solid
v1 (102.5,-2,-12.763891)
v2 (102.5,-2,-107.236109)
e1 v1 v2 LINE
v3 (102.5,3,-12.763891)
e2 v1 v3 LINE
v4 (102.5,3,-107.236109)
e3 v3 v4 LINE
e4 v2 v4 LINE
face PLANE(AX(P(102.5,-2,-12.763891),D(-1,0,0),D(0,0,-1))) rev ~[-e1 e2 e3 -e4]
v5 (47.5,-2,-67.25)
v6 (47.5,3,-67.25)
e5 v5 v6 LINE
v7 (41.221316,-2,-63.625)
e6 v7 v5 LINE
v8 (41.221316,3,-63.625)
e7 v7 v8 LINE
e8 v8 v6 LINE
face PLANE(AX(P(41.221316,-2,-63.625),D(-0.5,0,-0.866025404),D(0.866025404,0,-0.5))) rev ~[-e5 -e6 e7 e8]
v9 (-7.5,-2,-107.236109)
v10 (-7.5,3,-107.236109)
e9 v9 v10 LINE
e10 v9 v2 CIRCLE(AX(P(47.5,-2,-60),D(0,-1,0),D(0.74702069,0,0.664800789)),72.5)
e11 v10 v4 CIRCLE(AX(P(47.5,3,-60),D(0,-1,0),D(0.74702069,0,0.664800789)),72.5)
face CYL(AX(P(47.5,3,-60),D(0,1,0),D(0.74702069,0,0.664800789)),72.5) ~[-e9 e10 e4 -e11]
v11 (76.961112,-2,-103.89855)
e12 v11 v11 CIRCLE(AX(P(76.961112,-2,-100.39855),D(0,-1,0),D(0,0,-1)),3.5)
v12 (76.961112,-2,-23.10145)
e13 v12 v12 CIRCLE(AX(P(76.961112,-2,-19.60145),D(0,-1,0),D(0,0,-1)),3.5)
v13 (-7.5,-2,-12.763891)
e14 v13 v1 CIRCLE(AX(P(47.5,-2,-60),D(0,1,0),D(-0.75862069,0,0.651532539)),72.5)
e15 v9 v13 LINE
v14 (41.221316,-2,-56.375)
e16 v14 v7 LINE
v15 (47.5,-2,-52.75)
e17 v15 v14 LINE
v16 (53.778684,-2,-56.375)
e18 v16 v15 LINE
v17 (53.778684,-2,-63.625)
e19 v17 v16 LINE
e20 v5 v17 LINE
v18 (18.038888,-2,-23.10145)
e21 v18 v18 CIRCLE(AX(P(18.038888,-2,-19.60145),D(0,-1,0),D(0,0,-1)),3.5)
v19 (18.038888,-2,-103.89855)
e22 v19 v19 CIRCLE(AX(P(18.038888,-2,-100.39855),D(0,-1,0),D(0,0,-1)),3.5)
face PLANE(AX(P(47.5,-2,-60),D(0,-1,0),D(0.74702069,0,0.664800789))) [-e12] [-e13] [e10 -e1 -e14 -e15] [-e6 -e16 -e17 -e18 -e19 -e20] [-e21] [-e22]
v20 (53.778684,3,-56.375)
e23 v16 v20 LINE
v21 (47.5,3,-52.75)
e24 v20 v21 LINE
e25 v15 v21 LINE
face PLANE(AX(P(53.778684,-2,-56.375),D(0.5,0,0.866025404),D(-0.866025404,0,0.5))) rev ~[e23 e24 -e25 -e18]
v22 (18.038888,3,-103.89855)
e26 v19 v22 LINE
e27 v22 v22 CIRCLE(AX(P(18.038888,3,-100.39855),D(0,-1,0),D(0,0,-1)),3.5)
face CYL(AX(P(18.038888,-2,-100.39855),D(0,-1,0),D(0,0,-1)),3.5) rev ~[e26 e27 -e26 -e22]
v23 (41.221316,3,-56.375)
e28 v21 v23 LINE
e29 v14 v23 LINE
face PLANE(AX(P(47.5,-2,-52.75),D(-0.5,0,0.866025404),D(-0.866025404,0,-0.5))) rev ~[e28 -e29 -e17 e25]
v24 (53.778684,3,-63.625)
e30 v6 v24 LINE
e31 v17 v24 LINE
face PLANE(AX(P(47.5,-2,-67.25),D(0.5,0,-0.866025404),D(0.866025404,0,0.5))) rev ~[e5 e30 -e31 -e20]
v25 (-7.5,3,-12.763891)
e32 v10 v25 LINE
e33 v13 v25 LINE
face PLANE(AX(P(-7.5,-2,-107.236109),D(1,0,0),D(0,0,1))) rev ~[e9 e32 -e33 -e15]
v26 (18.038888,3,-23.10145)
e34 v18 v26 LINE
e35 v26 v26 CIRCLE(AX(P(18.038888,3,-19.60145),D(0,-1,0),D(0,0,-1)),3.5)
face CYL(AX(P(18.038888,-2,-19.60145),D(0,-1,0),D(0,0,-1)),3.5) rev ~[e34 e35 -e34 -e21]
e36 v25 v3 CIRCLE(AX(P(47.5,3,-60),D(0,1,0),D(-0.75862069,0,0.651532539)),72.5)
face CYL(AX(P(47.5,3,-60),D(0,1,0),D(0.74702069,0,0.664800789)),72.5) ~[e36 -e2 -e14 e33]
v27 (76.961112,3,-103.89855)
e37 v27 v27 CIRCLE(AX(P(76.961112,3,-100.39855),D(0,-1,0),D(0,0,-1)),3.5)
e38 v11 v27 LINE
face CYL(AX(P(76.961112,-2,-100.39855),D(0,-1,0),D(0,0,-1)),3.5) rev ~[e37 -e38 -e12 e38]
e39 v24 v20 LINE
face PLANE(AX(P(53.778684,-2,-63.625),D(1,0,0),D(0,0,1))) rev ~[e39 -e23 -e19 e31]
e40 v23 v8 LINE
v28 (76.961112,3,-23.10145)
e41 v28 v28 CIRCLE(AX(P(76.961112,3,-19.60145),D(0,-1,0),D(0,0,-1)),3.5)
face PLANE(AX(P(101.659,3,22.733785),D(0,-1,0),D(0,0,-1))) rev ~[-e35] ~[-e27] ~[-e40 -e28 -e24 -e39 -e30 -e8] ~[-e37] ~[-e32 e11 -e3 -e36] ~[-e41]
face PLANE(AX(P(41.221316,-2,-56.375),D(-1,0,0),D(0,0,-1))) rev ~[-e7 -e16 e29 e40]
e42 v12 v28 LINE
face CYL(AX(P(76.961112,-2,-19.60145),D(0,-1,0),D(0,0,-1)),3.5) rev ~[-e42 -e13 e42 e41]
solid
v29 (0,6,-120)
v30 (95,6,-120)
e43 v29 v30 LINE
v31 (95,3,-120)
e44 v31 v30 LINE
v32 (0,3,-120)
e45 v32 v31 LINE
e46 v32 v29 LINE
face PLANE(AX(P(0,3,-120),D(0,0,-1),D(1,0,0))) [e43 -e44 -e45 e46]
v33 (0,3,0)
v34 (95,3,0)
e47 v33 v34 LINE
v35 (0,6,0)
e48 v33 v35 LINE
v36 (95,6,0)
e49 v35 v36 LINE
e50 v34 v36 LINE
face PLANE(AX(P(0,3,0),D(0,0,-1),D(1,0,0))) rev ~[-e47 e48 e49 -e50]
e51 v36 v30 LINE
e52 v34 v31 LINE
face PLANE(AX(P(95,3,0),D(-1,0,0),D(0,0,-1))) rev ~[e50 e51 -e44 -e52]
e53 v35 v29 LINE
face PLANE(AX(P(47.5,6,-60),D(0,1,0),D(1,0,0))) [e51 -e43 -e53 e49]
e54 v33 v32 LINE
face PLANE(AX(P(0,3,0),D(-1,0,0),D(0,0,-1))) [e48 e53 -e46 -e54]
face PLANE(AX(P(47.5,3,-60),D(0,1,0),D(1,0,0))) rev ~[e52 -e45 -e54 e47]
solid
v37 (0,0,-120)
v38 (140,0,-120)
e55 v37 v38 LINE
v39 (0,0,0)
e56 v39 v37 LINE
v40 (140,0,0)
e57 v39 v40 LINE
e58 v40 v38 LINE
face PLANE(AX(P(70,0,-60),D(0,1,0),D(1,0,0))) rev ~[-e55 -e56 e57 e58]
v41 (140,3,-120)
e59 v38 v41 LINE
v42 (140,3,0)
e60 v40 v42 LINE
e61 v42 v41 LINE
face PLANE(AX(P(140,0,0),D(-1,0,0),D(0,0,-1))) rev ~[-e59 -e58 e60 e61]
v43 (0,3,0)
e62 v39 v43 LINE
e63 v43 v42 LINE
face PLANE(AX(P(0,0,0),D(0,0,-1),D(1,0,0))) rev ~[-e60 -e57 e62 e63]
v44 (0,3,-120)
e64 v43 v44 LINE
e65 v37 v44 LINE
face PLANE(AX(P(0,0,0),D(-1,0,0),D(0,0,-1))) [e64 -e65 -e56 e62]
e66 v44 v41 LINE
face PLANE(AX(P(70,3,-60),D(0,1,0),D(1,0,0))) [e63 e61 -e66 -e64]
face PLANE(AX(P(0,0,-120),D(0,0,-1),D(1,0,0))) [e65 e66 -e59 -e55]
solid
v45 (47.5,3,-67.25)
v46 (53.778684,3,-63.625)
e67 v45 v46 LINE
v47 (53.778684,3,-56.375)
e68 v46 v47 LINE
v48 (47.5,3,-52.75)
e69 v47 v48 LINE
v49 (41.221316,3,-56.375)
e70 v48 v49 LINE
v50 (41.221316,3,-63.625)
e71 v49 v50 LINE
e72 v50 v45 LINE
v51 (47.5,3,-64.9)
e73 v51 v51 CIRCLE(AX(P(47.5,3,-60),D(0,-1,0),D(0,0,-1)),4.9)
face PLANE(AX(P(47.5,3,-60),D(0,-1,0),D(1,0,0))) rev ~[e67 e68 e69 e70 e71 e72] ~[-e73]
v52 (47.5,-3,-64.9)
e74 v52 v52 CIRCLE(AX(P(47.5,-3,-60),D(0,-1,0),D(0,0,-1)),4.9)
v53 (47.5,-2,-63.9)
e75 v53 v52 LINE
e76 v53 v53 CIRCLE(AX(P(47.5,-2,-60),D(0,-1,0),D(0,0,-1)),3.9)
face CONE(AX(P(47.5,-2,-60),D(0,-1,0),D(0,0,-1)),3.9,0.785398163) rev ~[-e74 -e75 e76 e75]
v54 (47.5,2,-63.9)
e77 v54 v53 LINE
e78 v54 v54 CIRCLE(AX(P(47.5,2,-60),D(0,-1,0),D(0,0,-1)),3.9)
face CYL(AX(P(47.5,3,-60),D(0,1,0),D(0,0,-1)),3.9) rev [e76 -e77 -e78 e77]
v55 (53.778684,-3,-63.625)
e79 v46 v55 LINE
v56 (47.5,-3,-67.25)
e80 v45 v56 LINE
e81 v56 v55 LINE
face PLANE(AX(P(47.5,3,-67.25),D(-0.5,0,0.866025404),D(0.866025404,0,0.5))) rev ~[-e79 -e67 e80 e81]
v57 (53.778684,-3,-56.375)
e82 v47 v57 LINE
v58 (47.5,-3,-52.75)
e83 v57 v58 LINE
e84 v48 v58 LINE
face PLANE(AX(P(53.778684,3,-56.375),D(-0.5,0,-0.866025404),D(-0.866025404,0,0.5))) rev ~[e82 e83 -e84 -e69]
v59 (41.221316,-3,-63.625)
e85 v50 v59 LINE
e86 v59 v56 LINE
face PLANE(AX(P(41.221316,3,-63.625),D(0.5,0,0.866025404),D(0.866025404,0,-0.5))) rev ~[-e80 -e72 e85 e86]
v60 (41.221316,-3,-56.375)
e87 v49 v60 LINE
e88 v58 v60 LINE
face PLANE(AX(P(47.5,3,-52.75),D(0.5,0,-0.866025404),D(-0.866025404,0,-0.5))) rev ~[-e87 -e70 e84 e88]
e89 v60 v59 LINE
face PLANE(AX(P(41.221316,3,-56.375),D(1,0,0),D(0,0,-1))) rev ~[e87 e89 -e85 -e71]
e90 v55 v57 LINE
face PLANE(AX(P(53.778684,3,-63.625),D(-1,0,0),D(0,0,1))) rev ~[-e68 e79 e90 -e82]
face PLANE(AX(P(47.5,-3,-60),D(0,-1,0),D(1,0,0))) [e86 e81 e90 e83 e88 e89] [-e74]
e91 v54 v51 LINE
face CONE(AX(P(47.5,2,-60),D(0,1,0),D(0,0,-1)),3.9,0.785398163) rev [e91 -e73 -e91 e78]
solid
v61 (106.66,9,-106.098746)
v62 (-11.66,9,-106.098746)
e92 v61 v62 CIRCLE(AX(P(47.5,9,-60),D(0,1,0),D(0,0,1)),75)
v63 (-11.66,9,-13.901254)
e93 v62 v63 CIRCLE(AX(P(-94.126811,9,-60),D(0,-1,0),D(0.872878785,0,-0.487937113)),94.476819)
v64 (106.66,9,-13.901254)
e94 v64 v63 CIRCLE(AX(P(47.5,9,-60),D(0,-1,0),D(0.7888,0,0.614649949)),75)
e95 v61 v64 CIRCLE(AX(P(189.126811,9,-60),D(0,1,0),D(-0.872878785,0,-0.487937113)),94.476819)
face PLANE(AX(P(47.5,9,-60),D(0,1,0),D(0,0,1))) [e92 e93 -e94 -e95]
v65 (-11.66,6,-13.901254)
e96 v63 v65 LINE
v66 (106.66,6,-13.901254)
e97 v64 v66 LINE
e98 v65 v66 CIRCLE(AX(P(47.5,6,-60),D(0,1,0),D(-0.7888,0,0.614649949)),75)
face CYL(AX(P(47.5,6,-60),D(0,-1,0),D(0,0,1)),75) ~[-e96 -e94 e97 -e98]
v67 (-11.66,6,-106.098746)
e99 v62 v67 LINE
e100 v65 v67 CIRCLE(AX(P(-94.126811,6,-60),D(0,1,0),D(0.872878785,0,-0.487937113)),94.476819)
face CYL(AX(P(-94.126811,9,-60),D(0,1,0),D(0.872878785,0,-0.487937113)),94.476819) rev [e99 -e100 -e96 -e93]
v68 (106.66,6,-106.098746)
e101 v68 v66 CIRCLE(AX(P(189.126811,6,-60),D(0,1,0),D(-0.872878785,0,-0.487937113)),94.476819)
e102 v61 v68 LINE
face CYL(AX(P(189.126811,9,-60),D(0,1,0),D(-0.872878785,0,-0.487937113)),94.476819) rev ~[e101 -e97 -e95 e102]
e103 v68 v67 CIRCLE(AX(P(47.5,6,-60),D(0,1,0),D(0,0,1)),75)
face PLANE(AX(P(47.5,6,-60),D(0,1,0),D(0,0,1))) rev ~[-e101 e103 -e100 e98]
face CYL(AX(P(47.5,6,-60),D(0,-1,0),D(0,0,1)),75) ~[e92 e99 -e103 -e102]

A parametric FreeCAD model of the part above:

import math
import FreeCAD as App
import Part
import Sketcher
from FreeCAD import Vector
Q = App.Units.Quantity


def edges_at(feature, points):
    """Names of the edges that pass closest to the given points."""
    edges = feature.Shape.Edges
    near = lambda p: min(range(len(edges)), key=lambda i: edges[i].distToShape(Part.Vertex(*p))[0])
    return sorted({f"Edge{near(p) + 1}" for p in points})


def add_polygon(sketch, points):
    """Adds a closed chain of lines whose ends are joined by coincident constraints."""
    first, n = sketch.GeometryCount, len(points)
    for a, b in zip(points, points[1:] + points[:1]):
        sketch.addGeometry(Part.LineSegment(App.Vector(*a, 0), App.Vector(*b, 0)), False)
    for i in range(n):
        sketch.addConstraint(Sketcher.Constraint("Coincident", first + i, 2, first + (i + 1) % n, 1))

doc = App.newDocument("Part")
body = doc.addObject("PartDesign::Body", "Body")

sketch1 = body.newObject("Sketcher::SketchObject", "Sketch")
sketch1.AttachmentSupport = (doc.getObject("XZ_Plane"), [""])
sketch1.MapMode = "FlatFace"
add_polygon(sketch1, [(0, -120), (0, 0), (140, 0), (140, -120)])
sketch1.addConstraint([
    Sketcher.Constraint("Vertical", 0),
    Sketcher.Constraint("Horizontal", 1),
    Sketcher.Constraint("Vertical", 2),
    Sketcher.Constraint("Horizontal", 3),
    Sketcher.Constraint("Coincident", 0, 2, -1, 1),
    Sketcher.Constraint("DistanceX", 1, 1, 1, 2, Q("140 mm")),
    Sketcher.Constraint("DistanceY", 0, 1, 0, 2, Q("120 mm")),
])
pad1 = body.newObject("PartDesign::Pad", "Pad")
pad1.Profile = sketch1
pad1.Length = 3
pad1.Reversed = True
body2 = doc.addObject("PartDesign::Body", "Body001")

sketch2 = body2.newObject("Sketcher::SketchObject", "Sketch001")
sketch2.AttachmentSupport = (doc.getObject("XZ_Plane001"), [""])
sketch2.MapMode = "FlatFace"
sketch2.AttachmentOffset = App.Placement(Vector(0, 0, -3), App.Rotation())
add_polygon(sketch2, [(0, -120), (0, 0), (95, 0), (95, -120)])
sketch2.addConstraint([
    Sketcher.Constraint("Vertical", 0),
    Sketcher.Constraint("Horizontal", 1),
    Sketcher.Constraint("Vertical", 2),
    Sketcher.Constraint("Horizontal", 3),
    Sketcher.Constraint("Coincident", 0, 2, -1, 1),
    Sketcher.Constraint("DistanceX", 1, 1, 1, 2, Q("95 mm")),
    Sketcher.Constraint("DistanceY", 0, 1, 0, 2, Q("120 mm")),
])
pad2 = body2.newObject("PartDesign::Pad", "Pad001")
pad2.Profile = sketch2
pad2.Length = 3
pad2.Reversed = True
body3 = doc.addObject("PartDesign::Body", "Body002")

sketch3 = body3.newObject("Sketcher::SketchObject", "Sketch002")
sketch3.AttachmentSupport = (doc.getObject("XZ_Plane002"), [""])
sketch3.MapMode = "FlatFace"
sketch3.AttachmentOffset = App.Placement(Vector(0, 0, -6), App.Rotation())
sketch3.addGeometry(Part.Circle(Vector(47.5, -60, 0), Vector(0, 0, 1), 75), False)
sketch3.addConstraint([
    Sketcher.Constraint("Diameter", 0, Q("150 mm")),
    Sketcher.Constraint("DistanceY", 0, 3, -1, 1, Q("60 mm")),
    Sketcher.Constraint("DistanceX", -1, 1, 0, 3, Q("47.5 mm")),
])
pad3 = body3.newObject("PartDesign::Pad", "Pad002")
pad3.Profile = sketch3
pad3.Length = 3
pad3.Reversed = True

sketch4 = body3.newObject("Sketcher::SketchObject", "Sketch003")
sketch4.AttachmentSupport = (doc.getObject("XZ_Plane002"), [""])
sketch4.MapMode = "FlatFace"
sketch4.AttachmentOffset = App.Placement(Vector(0, 0, -9), App.Rotation())
sketch4.addGeometry([
    Part.ArcOfCircle(Part.Circle(Vector(-94.126811, -60, 0), Vector(0, 0, 1), 94.476819), math.radians(-29.205084), math.radians(29.205084)),
    Part.ArcOfCircle(Part.Circle(Vector(47.5, -60, 0), Vector(0, 0, 1), 75), math.radians(142.073511), math.radians(217.926489)),
    Part.ArcOfCircle(Part.Circle(Vector(189.126811, -60, 0), Vector(0, 0, 1), 94.476819), math.radians(150.794916), math.radians(209.205084)),
    Part.ArcOfCircle(Part.Circle(Vector(47.5, -60, 0), Vector(0, 0, 1), 75), math.radians(-37.926489), math.radians(37.926489)),
], False)
sketch4.addConstraint([
    Sketcher.Constraint("Coincident", 0, 1, 1, 2),
    Sketcher.Constraint("Coincident", 1, 1, 0, 2),
    Sketcher.Constraint("Coincident", 2, 1, 3, 2),
    Sketcher.Constraint("Coincident", 3, 1, 2, 2),
    Sketcher.Constraint("Coincident", 3, 3, 1, 3),
    Sketcher.Constraint("Equal", 0, 2),
    Sketcher.Constraint("Equal", 1, 3),
    Sketcher.Constraint("Horizontal", 0, 3, 1, 3),
    Sketcher.Constraint("Horizontal", 1, 3, 2, 3),
    Sketcher.Constraint("Horizontal", 1, 1, 2, 1),
    Sketcher.Constraint("Radius", 1, Q("75 mm")),
    Sketcher.Constraint("DistanceY", 0, 3, -1, 1, Q("60 mm")),
    Sketcher.Constraint("DistanceX", -1, 1, 1, 3, Q("47.5 mm")),
    Sketcher.Constraint("DistanceX", 0, 1, -1, 1, Q("11.66 mm")),
    Sketcher.Constraint("Radius", 0, Q("94.476819 mm")),
])
pocket1 = body3.newObject("PartDesign::Pocket", "Pocket")
pocket1.Profile = sketch4
pocket1.Type = "ThroughAll"
pocket1.Reversed = True
body4 = doc.addObject("PartDesign::Body", "Body003")

sketch5 = body4.newObject("Sketcher::SketchObject", "Sketch004")
sketch5.AttachmentSupport = (doc.getObject("XZ_Plane003"), [""])
sketch5.MapMode = "FlatFace"
sketch5.AttachmentOffset = App.Placement(Vector(0, 0, -6), App.Rotation())
sketch5.addGeometry([
    Part.ArcOfCircle(Part.Circle(Vector(47.5, -60, 0), Vector(0, 0, 1), 75), math.radians(37.926489), math.radians(142.073511)),
    Part.ArcOfCircle(Part.Circle(Vector(-94.126811, -60, 0), Vector(0, 0, 1), 94.476819), math.radians(-29.205084), math.radians(29.205084)),
    Part.ArcOfCircle(Part.Circle(Vector(47.5, -60, 0), Vector(0, 0, 1), 75), math.radians(-142.073511), math.radians(-37.926489)),
    Part.ArcOfCircle(Part.Circle(Vector(189.126811, -60, 0), Vector(0, 0, 1), 94.476819), math.radians(150.794916), math.radians(209.205084)),
], False)
sketch5.addConstraint([
    Sketcher.Constraint("Coincident", 0, 2, 1, 2),
    Sketcher.Constraint("Coincident", 1, 1, 2, 1),
    Sketcher.Constraint("Coincident", 2, 2, 3, 2),
    Sketcher.Constraint("Coincident", 3, 1, 0, 1),
    Sketcher.Constraint("Coincident", 2, 3, 0, 3),
    Sketcher.Constraint("Equal", 0, 2),
    Sketcher.Constraint("Equal", 1, 3),
    Sketcher.Constraint("Horizontal", 0, 3, 1, 3),
    Sketcher.Constraint("Horizontal", 2, 3, 3, 3),
    Sketcher.Constraint("Horizontal", 1, 1, 2, 2),
    Sketcher.Constraint("Radius", 0, Q("75 mm")),
    Sketcher.Constraint("DistanceY", 0, 3, -1, 1, Q("60 mm")),
    Sketcher.Constraint("DistanceX", -1, 1, 0, 3, Q("47.5 mm")),
    Sketcher.Constraint("DistanceX", 0, 2, -1, 1, Q("11.66 mm")),
    Sketcher.Constraint("Radius", 1, Q("94.476819 mm")),
])
pad4 = body4.newObject("PartDesign::Pad", "Pad003")
pad4.Profile = sketch5
pad4.Length = 3

sketch6 = body4.newObject("Sketcher::SketchObject", "Sketch005")
sketch6.AttachmentSupport = (doc.getObject("XZ_Plane003"), [""])
sketch6.MapMode = "FlatFace"
sketch6.AttachmentOffset = App.Placement(Vector(0, 0, -6), App.Rotation())
sketch6.addGeometry([
    Part.LineSegment(Vector(-11.66, -106.098746, 0), Vector(-11.66, -13.901254, 0)),
    Part.ArcOfCircle(Part.Circle(Vector(-94.126811, -60, 0), Vector(0, 0, 1), 94.476819), math.radians(-29.205084), math.radians(29.205084)),
    Part.LineSegment(Vector(106.66, -13.901254, 0), Vector(106.66, -106.098746, 0)),
    Part.ArcOfCircle(Part.Circle(Vector(189.126811, -60, 0), Vector(0, 0, 1), 94.476819), math.radians(150.794916), math.radians(209.205084)),
], False)
sketch6.addConstraint([
    Sketcher.Constraint("Coincident", 0, 1, 1, 1),
    Sketcher.Constraint("Coincident", 1, 2, 0, 2),
    Sketcher.Constraint("Coincident", 2, 1, 3, 1),
    Sketcher.Constraint("Coincident", 3, 2, 2, 2),
    Sketcher.Constraint("Vertical", 0),
    Sketcher.Constraint("Vertical", 2),
    Sketcher.Constraint("Equal", 1, 3),
    Sketcher.Constraint("Horizontal", 1, 3, 3, 3),
    Sketcher.Constraint("Horizontal", 1, 2, 2, 1),
    Sketcher.Constraint("DistanceY", 1, 3, -1, 1, Q("60 mm")),
    Sketcher.Constraint("DistanceX", 0, 1, -1, 1, Q("11.66 mm")),
    Sketcher.Constraint("DistanceX", -1, 1, 2, 1, Q("106.66 mm")),
    Sketcher.Constraint("Radius", 1, Q("94.476819 mm")),
    Sketcher.Constraint("DistanceY", 0, 1, 0, 2, Q("92.197492 mm")),
])
pad5 = body4.newObject("PartDesign::Pad", "Pad004")
pad5.Profile = sketch6
pad5.Length = 3
doc.recompute()

fillet = body4.newObject("PartDesign::Fillet", "Fillet")
fillet.Base = (pad5, ["Edge1"])
fillet.UseAllEdges = True
fillet.Radius = 0.001

sketch7 = body4.newObject("Sketcher::SketchObject", "Sketch006")
sketch7.AttachmentSupport = (doc.getObject("XZ_Plane003"), [""])
sketch7.MapMode = "FlatFace"
sketch7.AttachmentOffset = App.Placement(Vector(0, 0, -6), App.Rotation())
sketch7.addGeometry([
    Part.LineSegment(Vector(-11.659006, -111.097403, 0), Vector(-11.659006, -106.097403, 0)),
    Part.ArcOfCircle(Part.Circle(Vector(47.5, -56.76662, 0), Vector(0, 0, 1), 77.028009), math.radians(-140.176365), math.radians(-39.823635)),
    Part.LineSegment(Vector(106.659006, -106.097403, 0), Vector(106.659006, -111.097403, 0)),
    Part.ArcOfCircle(Part.Circle(Vector(47.5, -61.76662, 0), Vector(0, 0, 1), 77.028009), math.radians(-140.176365), math.radians(-39.823635)),
    Part.LineSegment(Vector(106.659006, -8.902597, 0), Vector(106.659006, -13.902597, 0)),
    Part.ArcOfCircle(Part.Circle(Vector(47.5, -63.23338, 0), Vector(0, 0, 1), 77.028009), math.radians(39.823635), math.radians(140.176365)),
    Part.LineSegment(Vector(-11.659006, -13.902597, 0), Vector(-11.659006, -8.902597, 0)),
    Part.ArcOfCircle(Part.Circle(Vector(47.5, -58.23338, 0), Vector(0, 0, 1), 77.028009), math.radians(39.823635), math.radians(140.176365)),
], False)
sketch7.addConstraint([
    Sketcher.Constraint("Coincident", 0, 2, 1, 1),
    Sketcher.Constraint("Coincident", 1, 2, 2, 1),
    Sketcher.Constraint("Coincident", 2, 2, 3, 2),
    Sketcher.Constraint("Coincident", 3, 1, 0, 1),
    Sketcher.Constraint("Coincident", 4, 2, 5, 1),
    Sketcher.Constraint("Coincident", 5, 2, 6, 1),
    Sketcher.Constraint("Coincident", 6, 2, 7, 2),
    Sketcher.Constraint("Coincident", 7, 1, 4, 1),
    Sketcher.Constraint("Vertical", 0),
    Sketcher.Constraint("Vertical", 2),
    Sketcher.Constraint("Vertical", 4),
    Sketcher.Constraint("Vertical", 6),
    Sketcher.Constraint("Equal", 1, 3),
    Sketcher.Constraint("Equal", 3, 5),
    Sketcher.Constraint("Equal", 5, 7),
    Sketcher.Constraint("Horizontal", 0, 2, 1, 2),
    Sketcher.Constraint("Horizontal", 2, 2, 3, 1),
    Sketcher.Constraint("Horizontal", 4, 2, 5, 2),
    Sketcher.Constraint("Horizontal", 6, 2, 7, 1),
    Sketcher.Constraint("Vertical", 3, 3, 5, 3),
    Sketcher.Constraint("Vertical", 2, 2, 4, 2),
    Sketcher.Constraint("Equal", 2, 4),
    Sketcher.Constraint("DistanceY", 0, 1, 0, 2, Q("5 mm")),
    Sketcher.Constraint("DistanceX", -1, 1, 1, 3, Q("47.5 mm")),
    Sketcher.Constraint("Radius", 1, Q("77.028009 mm")),
    Sketcher.Constraint("DistanceY", 1, 3, -1, 1, Q("56.76662 mm")),
    Sketcher.Constraint("DistanceY", 5, 3, -1, 1, Q("63.23338 mm")),
    Sketcher.Constraint("DistanceX", 0, 2, 1, 2, Q("118.318012 mm")),
])
pad6 = body4.newObject("PartDesign::Pad", "Pad005")
pad6.Profile = sketch7
pad6.Length = 3

sketch8 = body4.newObject("Sketcher::SketchObject", "Sketch007")
sketch8.AttachmentSupport = (doc.getObject("XZ_Plane003"), [""])
sketch8.MapMode = "FlatFace"
sketch8.AttachmentOffset = App.Placement(Vector(0, 0, -3), App.Rotation())
sketch8.addGeometry([
    Part.Circle(Vector(7.5, -5.15, 0), Vector(0, 0, 1), 1.25),
    Part.Circle(Vector(87.5, -5.15, 0), Vector(0, 0, 1), 1.25),
    Part.Circle(Vector(87.5, -114.85, 0), Vector(0, 0, 1), 1.25),
    Part.Circle(Vector(7.5, -114.85, 0), Vector(0, 0, 1), 1.25),
], False)
sketch8.addConstraint([
    Sketcher.Constraint("Equal", 0, 1),
    Sketcher.Constraint("Equal", 1, 2),
    Sketcher.Constraint("Equal", 2, 3),
    Sketcher.Constraint("Horizontal", 0, 3, 1, 3),
    Sketcher.Constraint("Horizontal", 2, 3, 3, 3),
    Sketcher.Constraint("Vertical", 1, 3, 2, 3),
    Sketcher.Constraint("Vertical", 0, 3, 3, 3),
    Sketcher.Constraint("Diameter", 0, Q("2.5 mm")),
    Sketcher.Constraint("DistanceX", 0, 3, 1, 3, Q("80 mm")),
    Sketcher.Constraint("DistanceX", -1, 1, 0, 3, Q("7.5 mm")),
    Sketcher.Constraint("DistanceY", 2, 3, 1, 3, Q("109.7 mm")),
    Sketcher.Constraint("DistanceY", 0, 3, -1, 1, Q("5.15 mm")),
])
pocket2 = body4.newObject("PartDesign::Pocket", "Pocket001")
pocket2.Profile = sketch8
pocket2.Length = 10

sketch9 = body4.newObject("Sketcher::SketchObject", "Sketch008")
sketch9.AttachmentSupport = (doc.getObject("XZ_Plane003"), [""])
sketch9.MapMode = "FlatFace"
sketch9.AttachmentOffset = App.Placement(Vector(0, 0, -3), App.Rotation())
add_polygon(sketch9, [(120.372278, 37.050138), (-29.177495, 37.050138), (-29.177495, -158.601845), (120.372278, -158.601845)])
add_polygon(sketch9, [(-6.659, 24.702356), (101.659, 24.702356), (101.659, -143.843523), (-6.659, -143.843523)])
sketch9.addConstraint([
    Sketcher.Constraint("Horizontal", 0),
    Sketcher.Constraint("Vertical", 1),
    Sketcher.Constraint("Horizontal", 2),
    Sketcher.Constraint("Vertical", 3),
    Sketcher.Constraint("Horizontal", 4),
    Sketcher.Constraint("Vertical", 5),
    Sketcher.Constraint("Horizontal", 6),
    Sketcher.Constraint("Vertical", 7),
    Sketcher.Constraint("DistanceX", 4, 1, 4, 2, Q("108.318 mm")),
    Sketcher.Constraint("DistanceX", -1, 1, 4, 2, Q("101.659 mm")),
    Sketcher.Constraint("DistanceY", 5, 2, 5, 1, Q("168.545879 mm")),
    Sketcher.Constraint("DistanceY", 2, 2, 4, 2, Q("183.304201 mm")),
    Sketcher.Constraint("DistanceX", 0, 2, 0, 1, Q("149.549773 mm")),
    Sketcher.Constraint("DistanceY", 1, 2, 1, 1, Q("195.651983 mm")),
    Sketcher.Constraint("DistanceX", -1, 1, 2, 2, Q("120.372278 mm")),
    Sketcher.Constraint("DistanceY", -1, 1, 0, 2, Q("37.050138 mm")),
])
pocket3 = body4.newObject("PartDesign::Pocket", "Pocket002")
pocket3.Profile = sketch9
pocket3.Length = 10

sketch10 = body4.newObject("Sketcher::SketchObject", "Sketch009")
sketch10.AttachmentSupport = (doc.getObject("XZ_Plane003"), [""])
sketch10.MapMode = "FlatFace"
sketch10.AttachmentOffset = App.Placement(Vector(0, 0, -3), App.Rotation())
sketch10.addGeometry([
    Part.Circle(Vector(47.5, -60, 0), Vector(0, 0, 1), 72.5),
    Part.Circle(Vector(87.5, -114.85, 0), Vector(0, 0, 1), 1.25),
    Part.Circle(Vector(7.5, -114.85, 0), Vector(0, 0, 1), 1.25),
    Part.Circle(Vector(87.5, -5.15, 0), Vector(0, 0, 1), 1.25),
    Part.Circle(Vector(7.5, -5.15, 0), Vector(0, 0, 1), 1.25),
], False)
sketch10.addConstraint([
    Sketcher.Constraint("Equal", 1, 2),
    Sketcher.Constraint("Equal", 2, 3),
    Sketcher.Constraint("Equal", 3, 4),
    Sketcher.Constraint("Horizontal", 1, 3, 2, 3),
    Sketcher.Constraint("Horizontal", 3, 3, 4, 3),
    Sketcher.Constraint("Vertical", 1, 3, 3, 3),
    Sketcher.Constraint("Vertical", 2, 3, 4, 3),
    Sketcher.Constraint("Diameter", 0, Q("145 mm")),
    Sketcher.Constraint("Diameter", 1, Q("2.5 mm")),
    Sketcher.Constraint("DistanceY", 0, 3, -1, 1, Q("60 mm")),
    Sketcher.Constraint("DistanceX", 0, 3, 1, 3, Q("40 mm")),
    Sketcher.Constraint("DistanceX", 2, 3, 0, 3, Q("40 mm")),
    Sketcher.Constraint("DistanceX", -1, 1, 0, 3, Q("47.5 mm")),
    Sketcher.Constraint("DistanceY", 1, 3, 3, 3, Q("109.7 mm")),
    Sketcher.Constraint("DistanceY", 1, 3, -1, 1, Q("114.85 mm")),
])
pad7 = body4.newObject("PartDesign::Pad", "Pad006")
pad7.Profile = sketch10
pad7.Length = 5

sketch11 = body4.newObject("Sketcher::SketchObject", "Sketch010")
sketch11.AttachmentSupport = (doc.getObject("YZ_Plane003"), [""])
sketch11.MapMode = "FlatFace"
sketch11.AttachmentOffset = App.Placement(Vector(0, 0, 101.659), App.Rotation())
add_polygon(sketch11, [(3, 22.733785), (3, -147.503035), (8.214036, -147.503035), (8.214036, 22.733785)])
sketch11.addConstraint([
    Sketcher.Constraint("Vertical", 0),
    Sketcher.Constraint("Horizontal", 1),
    Sketcher.Constraint("Vertical", 2),
    Sketcher.Constraint("Horizontal", 3),
    Sketcher.Constraint("DistanceX", -1, 1, 0, 2, Q("3 mm")),
    Sketcher.Constraint("DistanceY", 0, 2, 0, 1, Q("170.23682 mm")),
    Sketcher.Constraint("DistanceX", 1, 1, 1, 2, Q("5.214036 mm")),
    Sketcher.Constraint("DistanceY", 0, 2, -1, 1, Q("147.503035 mm")),
])
pocket4 = body4.newObject("PartDesign::Pocket", "Pocket003")
pocket4.Profile = sketch11
pocket4.Length = 150

sketch12 = body4.newObject("Sketcher::SketchObject", "Sketch011")
sketch12.AttachmentSupport = (doc.getObject("XZ_Plane003"), [""])
sketch12.MapMode = "FlatFace"
sketch12.AttachmentOffset = App.Placement(Vector(0, 0, -3), App.Rotation())
sketch12.addGeometry(Part.Circle(Vector(47.5, -60, 0), Vector(0, 0, 1), 8.4), False)
sketch12.addConstraint([
    Sketcher.Constraint("Diameter", 0, Q("16.8 mm")),
    Sketcher.Constraint("DistanceY", 0, 3, -1, 1, Q("60 mm")),
    Sketcher.Constraint("DistanceX", -1, 1, 0, 3, Q("47.5 mm")),
])
pocket5 = body4.newObject("PartDesign::Pocket", "Pocket004")
pocket5.Profile = sketch12
pocket5.Length = 10
pocket5.Reversed = True

sketch13 = body4.newObject("Sketcher::SketchObject", "Sketch012")
sketch13.AttachmentSupport = (doc.getObject("XZ_Plane003"), [""])
sketch13.MapMode = "FlatFace"
sketch13.AttachmentOffset = App.Placement(Vector(0, 0, 2), App.Rotation())
sketch13.addGeometry([
    Part.Circle(Vector(76.961112, -100.39855, 0), Vector(0, 0, 1), 3.5),
    Part.Circle(Vector(18.038888, -100.39855, 0), Vector(0, 0, 1), 3.5),
    Part.Circle(Vector(18.038888, -19.60145, 0), Vector(0, 0, 1), 3.5),
], False)
sketch13.addConstraint([
    Sketcher.Constraint("Equal", 0, 1),
    Sketcher.Constraint("Equal", 1, 2),
    Sketcher.Constraint("Horizontal", 0, 3, 1, 3),
    Sketcher.Constraint("Vertical", 1, 3, 2, 3),
    Sketcher.Constraint("Diameter", 0, Q("7 mm")),
    Sketcher.Constraint("DistanceY", 1, 3, 2, 3, Q("80.7971 mm")),
    Sketcher.Constraint("DistanceY", 0, 3, -1, 1, Q("100.39855 mm")),
    Sketcher.Constraint("DistanceX", -1, 1, 0, 3, Q("76.961112 mm")),
    Sketcher.Constraint("DistanceX", -1, 1, 1, 3, Q("18.038888 mm")),
])
pocket6 = body4.newObject("PartDesign::Pocket", "Pocket005")
pocket6.Profile = sketch13
pocket6.Length = 12

sketch14 = body4.newObject("Sketcher::SketchObject", "Sketch013")
sketch14.AttachmentSupport = (doc.getObject("XZ_Plane003"), [""])
sketch14.MapMode = "FlatFace"
sketch14.AttachmentOffset = App.Placement(Vector(0, 0, 2), App.Rotation())
sketch14.addGeometry(Part.Circle(Vector(76.961112, -19.60145, 0), Vector(0, 0, 1), 3.5), False)
sketch14.addConstraint([
    Sketcher.Constraint("Diameter", 0, Q("7 mm")),
    Sketcher.Constraint("DistanceY", 0, 3, -1, 1, Q("19.60145 mm")),
    Sketcher.Constraint("DistanceX", -1, 1, 0, 3, Q("76.961112 mm")),
])
pocket7 = body4.newObject("PartDesign::Pocket", "Pocket006")
pocket7.Profile = sketch14
pocket7.Length = 10

sketch15 = body4.newObject("Sketcher::SketchObject", "Sketch014")
sketch15.AttachmentSupport = (doc.getObject("XZ_Plane003"), [""])
sketch15.MapMode = "FlatFace"
sketch15.AttachmentOffset = App.Placement(Vector(0, 0, 2), App.Rotation())
sketch15.addGeometry([
    Part.Circle(Vector(7.5, -5.15, 0), Vector(0, 0, 1), 3.32116),
    Part.Circle(Vector(87.5, -5.15, 0), Vector(0, 0, 1), 3.023678),
    Part.Circle(Vector(87.5, -114.85, 0), Vector(0, 0, 1), 2.802634),
    Part.Circle(Vector(7.5, -114.85, 0), Vector(0, 0, 1), 2.486558),
], False)
sketch15.addConstraint([
    Sketcher.Constraint("Horizontal", 0, 3, 1, 3),
    Sketcher.Constraint("Horizontal", 2, 3, 3, 3),
    Sketcher.Constraint("Vertical", 1, 3, 2, 3),
    Sketcher.Constraint("Vertical", 0, 3, 3, 3),
    Sketcher.Constraint("DistanceX", 0, 3, 1, 3, Q("80 mm")),
    Sketcher.Constraint("DistanceX", -1, 1, 0, 3, Q("7.5 mm")),
    Sketcher.Constraint("DistanceY", 2, 3, 1, 3, Q("109.7 mm")),
    Sketcher.Constraint("Diameter", 0, Q("6.642319 mm")),
    Sketcher.Constraint("Diameter", 2, Q("5.605268 mm")),
    Sketcher.Constraint("DistanceY", 0, 3, -1, 1, Q("5.15 mm")),
    Sketcher.Constraint("Diameter", 1, Q("6.047356 mm")),
    Sketcher.Constraint("Diameter", 3, Q("4.973115 mm")),
])
pad8 = body4.newObject("PartDesign::Pad", "Pad007")
pad8.Profile = sketch15
pad8.Length = 5
pad8.Reversed = True

sketch16 = body4.newObject("Sketcher::SketchObject", "Sketch015")
sketch16.AttachmentSupport = (doc.getObject("XZ_Plane003"), [""])
sketch16.MapMode = "FlatFace"
sketch16.AttachmentOffset = App.Placement(Vector(0, 0, 2), App.Rotation())
sketch16.addGeometry(Part.Circle(Vector(47.5, -60, 0), Vector(0, 0, 1), 12.079747), False)
sketch16.addConstraint([
    Sketcher.Constraint("DistanceY", 0, 3, -1, 1, Q("60 mm")),
    Sketcher.Constraint("DistanceX", -1, 1, 0, 3, Q("47.5 mm")),
    Sketcher.Constraint("Diameter", 0, Q("24.159495 mm")),
])
pad9 = body4.newObject("PartDesign::Pad", "Pad008")
pad9.Profile = sketch16
pad9.Length = 5
pad9.Reversed = True

sketch17 = body4.newObject("Sketcher::SketchObject", "Sketch016")
sketch17.AttachmentSupport = (doc.getObject("XZ_Plane003"), [""])
sketch17.MapMode = "FlatFace"
sketch17.AttachmentOffset = App.Placement(Vector(0, 0, 2), App.Rotation())
add_polygon(sketch17, [(47.5, -52.75), (41.221316, -56.375), (41.221316, -63.625), (47.5, -67.25), (53.778684, -63.625), (53.778684, -56.375)])
sketch17.addConstraint([
    Sketcher.Constraint("Vertical", 1),
    Sketcher.Constraint("Vertical", 4),
    Sketcher.Constraint("Parallel", 0, 3),
    Sketcher.Constraint("Parallel", 2, 5),
    Sketcher.Constraint("Horizontal", 1, 2, 3, 2),
    Sketcher.Constraint("Horizontal", 0, 2, 4, 2),
    Sketcher.Constraint("Vertical", 2, 2, 5, 2),
    Sketcher.Constraint("Angle", 0, Q("-150 deg")),
    Sketcher.Constraint("DistanceY", 1, 2, 1, 1, Q("7.25 mm")),
    Sketcher.Constraint("DistanceX", -1, 1, 2, 2, Q("47.5 mm")),
    Sketcher.Constraint("DistanceY", 2, 2, 5, 2, Q("14.5 mm")),
    Sketcher.Constraint("DistanceY", 2, 2, -1, 1, Q("67.25 mm")),
])
pocket8 = body4.newObject("PartDesign::Pocket", "Pocket007")
pocket8.Profile = sketch17
pocket8.Length = 5

sketch18 = body4.newObject("Sketcher::SketchObject", "Sketch017")
sketch18.AttachmentSupport = (doc.getObject("XZ_Plane003"), [""])
sketch18.MapMode = "FlatFace"
sketch18.AttachmentOffset = App.Placement(Vector(0, 0, 2), App.Rotation())
sketch18.addGeometry([
    Part.LineSegment(Vector(-7.5, -107.236109, 0), Vector(-7.5, -12.763891, 0)),
    Part.ArcOfCircle(Part.Circle(Vector(47.5, -60, 0), Vector(0, 0, 1), 72.5), math.radians(139.342751), math.radians(220.657249)),
    Part.LineSegment(Vector(102.5, -12.763891, 0), Vector(102.5, -107.236109, 0)),
    Part.ArcOfCircle(Part.Circle(Vector(47.5, -60, 0), Vector(0, 0, 1), 72.5), math.radians(-40.657249), math.radians(0)),
    Part.ArcOfCircle(Part.Circle(Vector(47.5, -60, 0), Vector(0, 0, 1), 72.5), math.radians(0), math.radians(40.657249)),
], False)
sketch18.addConstraint([
    Sketcher.Constraint("Coincident", 0, 1, 1, 2),
    Sketcher.Constraint("Coincident", 1, 1, 0, 2),
    Sketcher.Constraint("Coincident", 2, 2, 3, 1),
    Sketcher.Constraint("Tangent", 3, 2, 4, 1),
    Sketcher.Constraint("Coincident", 4, 2, 2, 1),
    Sketcher.Constraint("Vertical", 0),
    Sketcher.Constraint("Vertical", 2),
    Sketcher.Constraint("Coincident", 3, 3, 1, 3),
    Sketcher.Constraint("Equal", 1, 3),
    Sketcher.Constraint("Equal", 3, 4),
    Sketcher.Constraint("Horizontal", 0, 1, 2, 2),
    Sketcher.Constraint("Horizontal", 4, 3, 3, 2),
    Sketcher.Constraint("Radius", 1, Q("72.5 mm")),
    Sketcher.Constraint("DistanceY", 1, 3, -1, 1, Q("60 mm")),
    Sketcher.Constraint("DistanceX", -1, 1, 3, 2, Q("120 mm")),
    Sketcher.Constraint("DistanceX", 0, 1, 4, 3, Q("55 mm")),
])
pocket9 = body4.newObject("PartDesign::Pocket", "Pocket008")
pocket9.Profile = sketch18
pocket9.Length = 10
body5 = doc.addObject("PartDesign::Body", "Body004")

sketch19 = body5.newObject("Sketcher::SketchObject", "Sketch018")
sketch19.AttachmentSupport = (doc.getObject("XZ_Plane004"), [""])
sketch19.MapMode = "FlatFace"
sketch19.AttachmentOffset = App.Placement(Vector(0, 0, 2), App.Rotation())
add_polygon(sketch19, [(53.778684, -56.375), (47.5, -52.75), (41.221316, -56.375), (41.221316, -63.625), (47.5, -67.25), (53.778684, -63.625)])
sketch19.addGeometry(Part.Circle(Vector(47.5, -60, 0), Vector(0, 0, 1), 3.9), False)
sketch19.addConstraint([
    Sketcher.Constraint("Vertical", 2),
    Sketcher.Constraint("Vertical", 5),
    Sketcher.Constraint("Parallel", 0, 3),
    Sketcher.Constraint("Parallel", 1, 4),
    Sketcher.Constraint("Horizontal", 2, 2, 4, 2),
    Sketcher.Constraint("Horizontal", 1, 2, 5, 2),
    Sketcher.Constraint("Vertical", 6, 3, 0, 2),
    Sketcher.Constraint("Vertical", 0, 2, 3, 2),
    Sketcher.Constraint("Diameter", 6, Q("7.8 mm")),
    Sketcher.Constraint("Angle", 0, Q("150 deg")),
    Sketcher.Constraint("DistanceY", 6, 3, -1, 1, Q("60 mm")),
    Sketcher.Constraint("DistanceY", 2, 2, 2, 1, Q("7.25 mm")),
    Sketcher.Constraint("DistanceX", -1, 1, 6, 3, Q("47.5 mm")),
    Sketcher.Constraint("DistanceY", 3, 2, 0, 2, Q("14.5 mm")),
    Sketcher.Constraint("DistanceY", 0, 2, -1, 1, Q("52.75 mm")),
])
pad10 = body5.newObject("PartDesign::Pad", "Pad009")
pad10.Profile = sketch19
pad10.Type = "TwoLengths"
pad10.Length = 1
pad10.Length2 = 5
doc.recompute()

chamfer = body5.newObject("PartDesign::Chamfer", "Chamfer")
chamfer.Base = (pad10, edges_at(pad10, [(47.5, -3, -56.1)]))
chamfer.Size = 1
doc.recompute()

chamfer2 = body5.newObject("PartDesign::Chamfer", "Chamfer001")
chamfer2.Base = (chamfer, edges_at(chamfer, [(47.5, 3, -56.1)]))
chamfer2.Size = 1

doc.recompute()
